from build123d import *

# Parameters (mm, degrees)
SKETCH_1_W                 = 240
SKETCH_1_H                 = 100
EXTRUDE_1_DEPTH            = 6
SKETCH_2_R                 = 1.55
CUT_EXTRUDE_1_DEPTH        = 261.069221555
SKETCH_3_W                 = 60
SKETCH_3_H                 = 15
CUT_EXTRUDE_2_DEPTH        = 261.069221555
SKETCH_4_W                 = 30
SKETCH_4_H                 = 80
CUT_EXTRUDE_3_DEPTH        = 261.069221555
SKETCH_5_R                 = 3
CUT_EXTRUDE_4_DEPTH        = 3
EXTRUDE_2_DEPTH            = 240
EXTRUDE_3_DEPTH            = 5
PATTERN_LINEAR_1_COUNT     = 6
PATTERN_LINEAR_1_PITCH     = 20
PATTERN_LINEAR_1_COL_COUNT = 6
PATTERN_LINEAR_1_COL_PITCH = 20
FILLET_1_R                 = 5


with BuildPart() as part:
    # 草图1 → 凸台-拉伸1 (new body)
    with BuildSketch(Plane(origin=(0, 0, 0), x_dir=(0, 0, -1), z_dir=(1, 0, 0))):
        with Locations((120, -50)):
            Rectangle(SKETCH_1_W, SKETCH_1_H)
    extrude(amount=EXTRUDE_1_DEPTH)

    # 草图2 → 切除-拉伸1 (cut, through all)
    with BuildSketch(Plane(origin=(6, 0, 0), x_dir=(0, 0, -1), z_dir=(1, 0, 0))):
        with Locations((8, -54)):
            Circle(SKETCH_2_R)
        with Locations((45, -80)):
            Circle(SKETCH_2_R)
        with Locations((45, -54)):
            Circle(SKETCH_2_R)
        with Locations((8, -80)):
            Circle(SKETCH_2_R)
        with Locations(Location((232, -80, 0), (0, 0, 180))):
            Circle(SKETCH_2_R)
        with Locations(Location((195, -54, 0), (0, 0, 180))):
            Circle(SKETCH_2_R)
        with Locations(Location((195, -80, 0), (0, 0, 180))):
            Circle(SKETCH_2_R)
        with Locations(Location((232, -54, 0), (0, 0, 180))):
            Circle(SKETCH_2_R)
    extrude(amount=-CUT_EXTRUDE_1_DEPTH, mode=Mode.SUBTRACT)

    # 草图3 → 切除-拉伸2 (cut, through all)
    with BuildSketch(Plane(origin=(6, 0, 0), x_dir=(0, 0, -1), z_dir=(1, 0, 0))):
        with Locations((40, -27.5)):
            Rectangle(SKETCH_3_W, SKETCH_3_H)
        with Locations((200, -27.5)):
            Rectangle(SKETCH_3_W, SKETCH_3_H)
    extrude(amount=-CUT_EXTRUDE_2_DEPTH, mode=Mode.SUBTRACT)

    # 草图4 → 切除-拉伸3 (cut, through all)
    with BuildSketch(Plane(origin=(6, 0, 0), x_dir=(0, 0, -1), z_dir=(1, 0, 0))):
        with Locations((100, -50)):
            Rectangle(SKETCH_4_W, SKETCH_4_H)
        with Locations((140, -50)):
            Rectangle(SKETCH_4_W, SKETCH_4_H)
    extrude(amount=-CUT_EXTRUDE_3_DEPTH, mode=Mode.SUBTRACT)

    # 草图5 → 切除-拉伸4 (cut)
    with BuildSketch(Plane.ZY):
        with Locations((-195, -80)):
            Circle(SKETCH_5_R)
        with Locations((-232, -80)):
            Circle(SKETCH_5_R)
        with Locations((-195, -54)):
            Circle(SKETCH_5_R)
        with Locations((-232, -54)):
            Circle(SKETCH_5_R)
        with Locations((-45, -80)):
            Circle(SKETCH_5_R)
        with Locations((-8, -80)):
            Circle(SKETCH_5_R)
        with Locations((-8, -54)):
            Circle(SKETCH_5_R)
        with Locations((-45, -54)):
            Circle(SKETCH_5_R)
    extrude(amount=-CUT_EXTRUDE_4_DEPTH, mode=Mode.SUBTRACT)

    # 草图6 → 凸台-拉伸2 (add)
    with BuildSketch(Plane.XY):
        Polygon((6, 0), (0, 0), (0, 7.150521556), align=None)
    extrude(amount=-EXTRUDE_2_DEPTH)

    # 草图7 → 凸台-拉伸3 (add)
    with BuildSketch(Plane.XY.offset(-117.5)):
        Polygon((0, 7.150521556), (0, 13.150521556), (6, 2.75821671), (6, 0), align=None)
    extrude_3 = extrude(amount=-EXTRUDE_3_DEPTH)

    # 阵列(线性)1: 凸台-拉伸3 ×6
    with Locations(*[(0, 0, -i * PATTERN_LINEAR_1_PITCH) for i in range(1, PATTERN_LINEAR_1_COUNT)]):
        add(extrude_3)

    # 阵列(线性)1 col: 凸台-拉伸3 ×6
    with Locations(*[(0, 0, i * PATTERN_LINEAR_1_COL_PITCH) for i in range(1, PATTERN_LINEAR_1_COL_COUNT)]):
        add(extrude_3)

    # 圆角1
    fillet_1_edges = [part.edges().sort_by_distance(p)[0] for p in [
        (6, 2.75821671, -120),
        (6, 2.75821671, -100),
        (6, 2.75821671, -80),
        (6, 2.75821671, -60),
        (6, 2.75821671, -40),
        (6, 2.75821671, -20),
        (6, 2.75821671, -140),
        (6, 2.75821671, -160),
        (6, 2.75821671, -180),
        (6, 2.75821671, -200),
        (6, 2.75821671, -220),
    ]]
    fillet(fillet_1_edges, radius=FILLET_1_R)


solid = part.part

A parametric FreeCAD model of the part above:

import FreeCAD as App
import Part
import Sketcher
from FreeCAD import Vector
Q = App.Units.Quantity


def edges_at(feature, points):
    """Names of the edges that pass closest to the given points."""
    edges = feature.Shape.Edges
    near = lambda p: min(range(len(edges)), key=lambda i: edges[i].distToShape(Part.Vertex(*p))[0])
    return sorted({f"Edge{near(p) + 1}" for p in points})

doc = App.newDocument("Part")
body = doc.addObject("PartDesign::Body", "Body")

sketch1 = body.newObject("Sketcher::SketchObject", "Sketch")
sketch1.AttachmentSupport = (doc.getObject("YZ_Plane"), [""])
sketch1.MapMode = "FlatFace"
sketch1.addGeometry(Part.LineSegment(Vector(0, 0, 0), Vector(-100, 0, 0)), False)
sketch1.addGeometry(Part.LineSegment(Vector(-100, 0, 0), Vector(-100, -240, 0)), False)
sketch1.addGeometry(Part.LineSegment(Vector(-100, -240, 0), Vector(0, -240, 0)), False)
sketch1.addGeometry(Part.LineSegment(Vector(0, -240, 0), Vector(0, 0, 0)), False)
sketch1.addConstraint(Sketcher.Constraint("Coincident", 0, 2, 1, 1))
sketch1.addConstraint(Sketcher.Constraint("Coincident", 1, 2, 2, 1))
sketch1.addConstraint(Sketcher.Constraint("Coincident", 2, 2, 3, 1))
sketch1.addConstraint(Sketcher.Constraint("Coincident", 3, 2, 0, 1))
sketch1.addConstraint(Sketcher.Constraint("Horizontal", 0))
sketch1.addConstraint(Sketcher.Constraint("Vertical", 1))
sketch1.addConstraint(Sketcher.Constraint("Horizontal", 2))
sketch1.addConstraint(Sketcher.Constraint("Vertical", 3))
sketch1.addConstraint(Sketcher.Constraint("Coincident", 3, 2, -1, 1))
sketch1.addConstraint(Sketcher.Constraint("DistanceX", 0, 2, 0, 1, 100.0))
sketch1.addConstraint(Sketcher.Constraint("DistanceY", 1, 2, 1, 1, 240.0))
pad1 = body.newObject("PartDesign::Pad", "Pad")
pad1.Profile = sketch1
pad1.Length = 6

sketch2 = body.newObject("Sketcher::SketchObject", "Sketch001")
sketch2.AttachmentSupport = (doc.getObject("YZ_Plane"), [""])
sketch2.MapMode = "FlatFace"
sketch2.AttachmentOffset = App.Placement(Vector(0, 0, 6), App.Rotation())
sketch2.addGeometry(Part.Circle(Vector(-54, -8, 0), Vector(0, 0, 1), 1.55), False)
sketch2.addGeometry(Part.Circle(Vector(-80, -45, 0), Vector(0, 0, 1), 1.55), False)
sketch2.addGeometry(Part.Circle(Vector(-54, -45, 0), Vector(0, 0, 1), 1.55), False)
sketch2.addGeometry(Part.Circle(Vector(-80, -8, 0), Vector(0, 0, 1), 1.55), False)
sketch2.addGeometry(Part.Circle(Vector(-80, -232, 0), Vector(0, 0, 1), 1.55), False)
sketch2.addGeometry(Part.Circle(Vector(-54, -195, 0), Vector(0, 0, 1), 1.55), False)
sketch2.addGeometry(Part.Circle(Vector(-80, -195, 0), Vector(0, 0, 1), 1.55), False)
sketch2.addGeometry(Part.Circle(Vector(-54, -232, 0), Vector(0, 0, 1), 1.55), False)
sketch2.addConstraint(Sketcher.Constraint("Equal", 0, 1))
sketch2.addConstraint(Sketcher.Constraint("Equal", 1, 2))
sketch2.addConstraint(Sketcher.Constraint("Equal", 2, 3))
sketch2.addConstraint(Sketcher.Constraint("Equal", 3, 4))
sketch2.addConstraint(Sketcher.Constraint("Equal", 4, 5))
sketch2.addConstraint(Sketcher.Constraint("Equal", 5, 6))
sketch2.addConstraint(Sketcher.Constraint("Equal", 6, 7))
sketch2.addConstraint(Sketcher.Constraint("Horizontal", 1, 3, 2, 3))
sketch2.addConstraint(Sketcher.Constraint("Horizontal", 0, 3, 3, 3))
sketch2.addConstraint(Sketcher.Constraint("Horizontal", 5, 3, 6, 3))
sketch2.addConstraint(Sketcher.Constraint("Horizontal", 4, 3, 7, 3))
sketch2.addConstraint(Sketcher.Constraint("Vertical", 0, 3, 2, 3))
sketch2.addConstraint(Sketcher.Constraint("Vertical", 1, 3, 3, 3))
sketch2.addConstraint(Sketcher.Constraint("Vertical", 3, 3, 4, 3))
sketch2.addConstraint(Sketcher.Constraint("Vertical", 2, 3, 5, 3))
sketch2.addConstraint(Sketcher.Constraint("Vertical", 4, 3, 6, 3))
sketch2.addConstraint(Sketcher.Constraint("Vertical", 5, 3, 7, 3))
sketch2.addConstraint(Sketcher.Constraint("Diameter", 0, 3.1))
sketch2.addConstraint(Sketcher.Constraint("DistanceX", 0, 3, -1, 1, 54.0))
sketch2.addConstraint(Sketcher.Constraint("DistanceY", 0, 3, -1, 1, 8.0))
sketch2.addConstraint(Sketcher.Constraint("DistanceX", 1, 3, -1, 1, 80.0))
sketch2.addConstraint(Sketcher.Constraint("DistanceY", 1, 3, -1, 1, 45.0))
sketch2.addConstraint(Sketcher.Constraint("DistanceY", 4, 3, -1, 1, 232.0))
sketch2.addConstraint(Sketcher.Constraint("DistanceY", 5, 3, -1, 1, 195.0))
pocket1 = body.newObject("PartDesign::Pocket", "Pocket")
pocket1.Profile = sketch2
pocket1.Type = "ThroughAll"

sketch3 = body.newObject("Sketcher::SketchObject", "Sketch002")
sketch3.AttachmentSupport = (doc.getObject("YZ_Plane"), [""])
sketch3.MapMode = "FlatFace"
sketch3.AttachmentOffset = App.Placement(Vector(0, 0, 6), App.Rotation())
sketch3.addGeometry(Part.LineSegment(Vector(-20, -10, 0), Vector(-35, -10, 0)), False)
sketch3.addGeometry(Part.LineSegment(Vector(-35, -10, 0), Vector(-35, -70, 0)), False)
sketch3.addGeometry(Part.LineSegment(Vector(-35, -70, 0), Vector(-20, -70, 0)), False)
sketch3.addGeometry(Part.LineSegment(Vector(-20, -70, 0), Vector(-20, -10, 0)), False)
sketch3.addGeometry(Part.LineSegment(Vector(-20, -170, 0), Vector(-35, -170, 0)), False)
sketch3.addGeometry(Part.LineSegment(Vector(-35, -170, 0), Vector(-35, -230, 0)), False)
sketch3.addGeometry(Part.LineSegment(Vector(-35, -230, 0), Vector(-20, -230, 0)), False)
sketch3.addGeometry(Part.LineSegment(Vector(-20, -230, 0), Vector(-20, -170, 0)), False)
sketch3.addConstraint(Sketcher.Constraint("Coincident", 0, 2, 1, 1))
sketch3.addConstraint(Sketcher.Constraint("Coincident", 1, 2, 2, 1))
sketch3.addConstraint(Sketcher.Constraint("Coincident", 2, 2, 3, 1))
sketch3.addConstraint(Sketcher.Constraint("Coincident", 3, 2, 0, 1))
sketch3.addConstraint(Sketcher.Constraint("Coincident", 4, 2, 5, 1))
sketch3.addConstraint(Sketcher.Constraint("Coincident", 5, 2, 6, 1))
sketch3.addConstraint(Sketcher.Constraint("Coincident", 6, 2, 7, 1))
sketch3.addConstraint(Sketcher.Constraint("Coincident", 7, 2, 4, 1))
sketch3.addConstraint(Sketcher.Constraint("Horizontal", 0))
sketch3.addConstraint(Sketcher.Constraint("Vertical", 1))
sketch3.addConstraint(Sketcher.Constraint("Horizontal", 2))
sketch3.addConstraint(Sketcher.Constraint("Vertical", 3))
sketch3.addConstraint(Sketcher.Constraint("Horizontal", 4))
sketch3.addConstraint(Sketcher.Constraint("Vertical", 5))
sketch3.addConstraint(Sketcher.Constraint("Horizontal", 6))
sketch3.addConstraint(Sketcher.Constraint("Vertical", 7))
sketch3.addConstraint(Sketcher.Constraint("Vertical", 1, 2, 4, 2))
sketch3.addConstraint(Sketcher.Constraint("Vertical", 3, 2, 6, 2))
sketch3.addConstraint(Sketcher.Constraint("Equal", 3, 5))
sketch3.addConstraint(Sketcher.Constraint("DistanceX", 0, 2, 0, 1, 15.0))
sketch3.addConstraint(Sketcher.Constraint("DistanceY", 1, 2, 1, 1, 60.0))
sketch3.addConstraint(Sketcher.Constraint("DistanceX", 0, 2, -1, 1, 35.0))
sketch3.addConstraint(Sketcher.Constraint("DistanceY", 0, 2, -1, 1, 10.0))
sketch3.addConstraint(Sketcher.Constraint("DistanceY", 4, 2, -1, 1, 170.0))
pocket2 = body.newObject("PartDesign::Pocket", "Pocket001")
pocket2.Profile = sketch3
pocket2.Type = "ThroughAll"

sketch4 = body.newObject("Sketcher::SketchObject", "Sketch003")
sketch4.AttachmentSupport = (doc.getObject("YZ_Plane"), [""])
sketch4.MapMode = "FlatFace"
sketch4.AttachmentOffset = App.Placement(Vector(0, 0, 6), App.Rotation())
sketch4.addGeometry(Part.LineSegment(Vector(-10, -85, 0), Vector(-90, -85, 0)), False)
sketch4.addGeometry(Part.LineSegment(Vector(-90, -85, 0), Vector(-90, -115, 0)), False)
sketch4.addGeometry(Part.LineSegment(Vector(-90, -115, 0), Vector(-10, -115, 0)), False)
sketch4.addGeometry(Part.LineSegment(Vector(-10, -115, 0), Vector(-10, -85, 0)), False)
sketch4.addGeometry(Part.LineSegment(Vector(-10, -125, 0), Vector(-90, -125, 0)), False)
sketch4.addGeometry(Part.LineSegment(Vector(-90, -125, 0), Vector(-90, -155, 0)), False)
sketch4.addGeometry(Part.LineSegment(Vector(-90, -155, 0), Vector(-10, -155, 0)), False)
sketch4.addGeometry(Part.LineSegment(Vector(-10, -155, 0), Vector(-10, -125, 0)), False)
sketch4.addConstraint(Sketcher.Constraint("Coincident", 0, 2, 1, 1))
sketch4.addConstraint(Sketcher.Constraint("Coincident", 1, 2, 2, 1))
sketch4.addConstraint(Sketcher.Constraint("Coincident", 2, 2, 3, 1))
sketch4.addConstraint(Sketcher.Constraint("Coincident", 3, 2, 0, 1))
sketch4.addConstraint(Sketcher.Constraint("Coincident", 4, 2, 5, 1))
sketch4.addConstraint(Sketcher.Constraint("Coincident", 5, 2, 6, 1))
sketch4.addConstraint(Sketcher.Constraint("Coincident", 6, 2, 7, 1))
sketch4.addConstraint(Sketcher.Constraint("Coincident", 7, 2, 4, 1))
sketch4.addConstraint(Sketcher.Constraint("Horizontal", 0))
sketch4.addConstraint(Sketcher.Constraint("Vertical", 1))
sketch4.addConstraint(Sketcher.Constraint("Horizontal", 2))
sketch4.addConstraint(Sketcher.Constraint("Vertical", 3))
sketch4.addConstraint(Sketcher.Constraint("Horizontal", 4))
sketch4.addConstraint(Sketcher.Constraint("Vertical", 5))
sketch4.addConstraint(Sketcher.Constraint("Horizontal", 6))
sketch4.addConstraint(Sketcher.Constraint("Vertical", 7))
sketch4.addConstraint(Sketcher.Constraint("Vertical", 1, 2, 4, 2))
sketch4.addConstraint(Sketcher.Constraint("Vertical", 3, 2, 6, 2))
sketch4.addConstraint(Sketcher.Constraint("Equal", 3, 5))
sketch4.addConstraint(Sketcher.Constraint("DistanceX", 0, 2, 0, 1, 80.0))
sketch4.addConstraint(Sketcher.Constraint("DistanceY", 1, 2, 1, 1, 30.0))
sketch4.addConstraint(Sketcher.Constraint("DistanceX", 0, 2, -1, 1, 90.0))
sketch4.addConstraint(Sketcher.Constraint("DistanceY", 0, 2, -1, 1, 85.0))
sketch4.addConstraint(Sketcher.Constraint("DistanceY", 4, 2, -1, 1, 125.0))
pocket3 = body.newObject("PartDesign::Pocket", "Pocket002")
pocket3.Profile = sketch4
pocket3.Type = "ThroughAll"

sketch5 = body.newObject("Sketcher::SketchObject", "Sketch004")
sketch5.AttachmentSupport = (doc.getObject("YZ_Plane"), [""])
sketch5.MapMode = "FlatFace"
sketch5.addGeometry(Part.Circle(Vector(-80, -195, 0), Vector(0, 0, 1), 3), False)
sketch5.addGeometry(Part.Circle(Vector(-80, -232, 0), Vector(0, 0, 1), 3), False)
sketch5.addGeometry(Part.Circle(Vector(-54, -195, 0), Vector(0, 0, 1), 3), False)
sketch5.addGeometry(Part.Circle(Vector(-54, -232, 0), Vector(0, 0, 1), 3), False)
sketch5.addGeometry(Part.Circle(Vector(-80, -45, 0), Vector(0, 0, 1), 3), False)
sketch5.addGeometry(Part.Circle(Vector(-80, -8, 0), Vector(0, 0, 1), 3), False)
sketch5.addGeometry(Part.Circle(Vector(-54, -8, 0), Vector(0, 0, 1), 3), False)
sketch5.addGeometry(Part.Circle(Vector(-54, -45, 0), Vector(0, 0, 1), 3), False)
sketch5.addConstraint(Sketcher.Constraint("Equal", 0, 1))
sketch5.addConstraint(Sketcher.Constraint("Equal", 1, 2))
sketch5.addConstraint(Sketcher.Constraint("Equal", 2, 3))
sketch5.addConstraint(Sketcher.Constraint("Equal", 3, 4))
sketch5.addConstraint(Sketcher.Constraint("Equal", 4, 5))
sketch5.addConstraint(Sketcher.Constraint("Equal", 5, 6))
sketch5.addConstraint(Sketcher.Constraint("Equal", 6, 7))
sketch5.addConstraint(Sketcher.Constraint("Horizontal", 0, 3, 2, 3))
sketch5.addConstraint(Sketcher.Constraint("Horizontal", 1, 3, 3, 3))
sketch5.addConstraint(Sketcher.Constraint("Horizontal", 5, 3, 6, 3))
sketch5.addConstraint(Sketcher.Constraint("Horizontal", 4, 3, 7, 3))
sketch5.addConstraint(Sketcher.Constraint("Vertical", 0, 3, 1, 3))
sketch5.addConstraint(Sketcher.Constraint("Vertical", 2, 3, 3, 3))
sketch5.addConstraint(Sketcher.Constraint("Vertical", 1, 3, 4, 3))
sketch5.addConstraint(Sketcher.Constraint("Vertical", 4, 3, 5, 3))
sketch5.addConstraint(Sketcher.Constraint("Vertical", 3, 3, 6, 3))
sketch5.addConstraint(Sketcher.Constraint("Vertical", 6, 3, 7, 3))
sketch5.addConstraint(Sketcher.Constraint("Diameter", 0, 6.0))
sketch5.addConstraint(Sketcher.Constraint("DistanceX", 0, 3, -1, 1, 80.0))
sketch5.addConstraint(Sketcher.Constraint("DistanceY", 0, 3, -1, 1, 195.0))
sketch5.addConstraint(Sketcher.Constraint("DistanceY", 1, 3, -1, 1, 232.0))
sketch5.addConstraint(Sketcher.Constraint("DistanceX", 2, 3, -1, 1, 54.0))
sketch5.addConstraint(Sketcher.Constraint("DistanceY", 4, 3, -1, 1, 45.0))
sketch5.addConstraint(Sketcher.Constraint("DistanceY", 5, 3, -1, 1, 8.0))
pocket4 = body.newObject("PartDesign::Pocket", "Pocket003")
pocket4.Profile = sketch5
pocket4.Length = 3
pocket4.Reversed = True

sketch6 = body.newObject("Sketcher::SketchObject", "Sketch005")
sketch6.AttachmentSupport = (doc.getObject("XY_Plane"), [""])
sketch6.MapMode = "FlatFace"
sketch6.addGeometry(Part.LineSegment(Vector(0, 0, 0), Vector(6, 0, 0)), False)
sketch6.addGeometry(Part.LineSegment(Vector(6, 0, 0), Vector(0, 7.150522, 0)), False)
sketch6.addGeometry(Part.LineSegment(Vector(0, 7.150522, 0), Vector(0, 0, 0)), False)
sketch6.addConstraint(Sketcher.Constraint("Coincident", 0, 2, 1, 1))
sketch6.addConstraint(Sketcher.Constraint("Coincident", 1, 2, 2, 1))
sketch6.addConstraint(Sketcher.Constraint("Coincident", 2, 2, 0, 1))
sketch6.addConstraint(Sketcher.Constraint("Horizontal", 0))
sketch6.addConstraint(Sketcher.Constraint("Vertical", 2))
sketch6.addConstraint(Sketcher.Constraint("Coincident", 2, 2, -1, 1))
sketch6.addConstraint(Sketcher.Constraint("DistanceX", 0, 1, 0, 2, 6.0))
sketch6.addConstraint(Sketcher.Constraint("Angle", 1, Q("130 deg")))
pad2 = body.newObject("PartDesign::Pad", "Pad001")
pad2.Profile = sketch6
pad2.Length = 240
pad2.Reversed = True

sketch7 = body.newObject("Sketcher::SketchObject", "Sketch006")
sketch7.AttachmentSupport = (doc.getObject("XY_Plane"), [""])
sketch7.MapMode = "FlatFace"
sketch7.AttachmentOffset = App.Placement(Vector(0, 0, -117.5), App.Rotation())
sketch7.addGeometry(Part.LineSegment(Vector(0, 13.150522, 0), Vector(0, 7.150522, 0)), False)
sketch7.addGeometry(Part.LineSegment(Vector(0, 7.150522, 0), Vector(6, 0, 0)), False)
sketch7.addGeometry(Part.LineSegment(Vector(6, 0, 0), Vector(6, 2.758217, 0)), False)
sketch7.addGeometry(Part.LineSegment(Vector(6, 2.758217, 0), Vector(0, 13.150522, 0)), False)
sketch7.addConstraint(Sketcher.Constraint("Coincident", 0, 2, 1, 1))
sketch7.addConstraint(Sketcher.Constraint("Coincident", 1, 2, 2, 1))
sketch7.addConstraint(Sketcher.Constraint("Coincident", 2, 2, 3, 1))
sketch7.addConstraint(Sketcher.Constraint("Coincident", 3, 2, 0, 1))
sketch7.addConstraint(Sketcher.Constraint("Vertical", 0))
sketch7.addConstraint(Sketcher.Constraint("Vertical", 2))
sketch7.addConstraint(Sketcher.Constraint("PointOnObject", 0, 2, -2))
sketch7.addConstraint(Sketcher.Constraint("PointOnObject", 1, 2, -1))
sketch7.addConstraint(Sketcher.Constraint("DistanceY", 0, 2, 0, 1, 6.0))
sketch7.addConstraint(Sketcher.Constraint("Angle", 1, Q("-50 deg")))
sketch7.addConstraint(Sketcher.Constraint("Angle", 3, Q("120 deg")))
sketch7.addConstraint(Sketcher.Constraint("Distance", 3, 12.0))
pad3 = body.newObject("PartDesign::Pad", "Pad002")
pad3.Profile = sketch7
pad3.Length = 5
pad3.Reversed = True
doc.recompute()

linearpattern = body.newObject("PartDesign::LinearPattern", "LinearPattern")
linearpattern.Originals = [pad3]
linearpattern.Direction = (doc.getObject("Z_Axis"), [""])
linearpattern.Mode = "offset"
linearpattern.Offset = 20
linearpattern.Occurrences = 6
linearpattern.Reversed = True
body.Tip = linearpattern
doc.recompute()

linearpattern2 = body.newObject("PartDesign::LinearPattern", "LinearPattern001")
linearpattern2.Originals = [pad3]
linearpattern2.Direction = (doc.getObject("Z_Axis"), [""])
linearpattern2.Mode = "offset"
linearpattern2.Offset = 20
linearpattern2.Occurrences = 6
body.Tip = linearpattern2
doc.recompute()

fillet = body.newObject("PartDesign::Fillet", "Fillet")
fillet.Base = (linearpattern2, edges_at(linearpattern2, [
    (6, 2.758, -120),
    (6, 2.758, -100),
    (6, 2.758, -80),
    (6, 2.758, -60),
    (6, 2.758, -40),
    (6, 2.758, -20),
    (6, 2.758, -140),
    (6, 2.758, -160),
    (6, 2.758, -180),
    (6, 2.758, -200),
    (6, 2.758, -220),
]))
fillet.Radius = 5

doc.recompute()
